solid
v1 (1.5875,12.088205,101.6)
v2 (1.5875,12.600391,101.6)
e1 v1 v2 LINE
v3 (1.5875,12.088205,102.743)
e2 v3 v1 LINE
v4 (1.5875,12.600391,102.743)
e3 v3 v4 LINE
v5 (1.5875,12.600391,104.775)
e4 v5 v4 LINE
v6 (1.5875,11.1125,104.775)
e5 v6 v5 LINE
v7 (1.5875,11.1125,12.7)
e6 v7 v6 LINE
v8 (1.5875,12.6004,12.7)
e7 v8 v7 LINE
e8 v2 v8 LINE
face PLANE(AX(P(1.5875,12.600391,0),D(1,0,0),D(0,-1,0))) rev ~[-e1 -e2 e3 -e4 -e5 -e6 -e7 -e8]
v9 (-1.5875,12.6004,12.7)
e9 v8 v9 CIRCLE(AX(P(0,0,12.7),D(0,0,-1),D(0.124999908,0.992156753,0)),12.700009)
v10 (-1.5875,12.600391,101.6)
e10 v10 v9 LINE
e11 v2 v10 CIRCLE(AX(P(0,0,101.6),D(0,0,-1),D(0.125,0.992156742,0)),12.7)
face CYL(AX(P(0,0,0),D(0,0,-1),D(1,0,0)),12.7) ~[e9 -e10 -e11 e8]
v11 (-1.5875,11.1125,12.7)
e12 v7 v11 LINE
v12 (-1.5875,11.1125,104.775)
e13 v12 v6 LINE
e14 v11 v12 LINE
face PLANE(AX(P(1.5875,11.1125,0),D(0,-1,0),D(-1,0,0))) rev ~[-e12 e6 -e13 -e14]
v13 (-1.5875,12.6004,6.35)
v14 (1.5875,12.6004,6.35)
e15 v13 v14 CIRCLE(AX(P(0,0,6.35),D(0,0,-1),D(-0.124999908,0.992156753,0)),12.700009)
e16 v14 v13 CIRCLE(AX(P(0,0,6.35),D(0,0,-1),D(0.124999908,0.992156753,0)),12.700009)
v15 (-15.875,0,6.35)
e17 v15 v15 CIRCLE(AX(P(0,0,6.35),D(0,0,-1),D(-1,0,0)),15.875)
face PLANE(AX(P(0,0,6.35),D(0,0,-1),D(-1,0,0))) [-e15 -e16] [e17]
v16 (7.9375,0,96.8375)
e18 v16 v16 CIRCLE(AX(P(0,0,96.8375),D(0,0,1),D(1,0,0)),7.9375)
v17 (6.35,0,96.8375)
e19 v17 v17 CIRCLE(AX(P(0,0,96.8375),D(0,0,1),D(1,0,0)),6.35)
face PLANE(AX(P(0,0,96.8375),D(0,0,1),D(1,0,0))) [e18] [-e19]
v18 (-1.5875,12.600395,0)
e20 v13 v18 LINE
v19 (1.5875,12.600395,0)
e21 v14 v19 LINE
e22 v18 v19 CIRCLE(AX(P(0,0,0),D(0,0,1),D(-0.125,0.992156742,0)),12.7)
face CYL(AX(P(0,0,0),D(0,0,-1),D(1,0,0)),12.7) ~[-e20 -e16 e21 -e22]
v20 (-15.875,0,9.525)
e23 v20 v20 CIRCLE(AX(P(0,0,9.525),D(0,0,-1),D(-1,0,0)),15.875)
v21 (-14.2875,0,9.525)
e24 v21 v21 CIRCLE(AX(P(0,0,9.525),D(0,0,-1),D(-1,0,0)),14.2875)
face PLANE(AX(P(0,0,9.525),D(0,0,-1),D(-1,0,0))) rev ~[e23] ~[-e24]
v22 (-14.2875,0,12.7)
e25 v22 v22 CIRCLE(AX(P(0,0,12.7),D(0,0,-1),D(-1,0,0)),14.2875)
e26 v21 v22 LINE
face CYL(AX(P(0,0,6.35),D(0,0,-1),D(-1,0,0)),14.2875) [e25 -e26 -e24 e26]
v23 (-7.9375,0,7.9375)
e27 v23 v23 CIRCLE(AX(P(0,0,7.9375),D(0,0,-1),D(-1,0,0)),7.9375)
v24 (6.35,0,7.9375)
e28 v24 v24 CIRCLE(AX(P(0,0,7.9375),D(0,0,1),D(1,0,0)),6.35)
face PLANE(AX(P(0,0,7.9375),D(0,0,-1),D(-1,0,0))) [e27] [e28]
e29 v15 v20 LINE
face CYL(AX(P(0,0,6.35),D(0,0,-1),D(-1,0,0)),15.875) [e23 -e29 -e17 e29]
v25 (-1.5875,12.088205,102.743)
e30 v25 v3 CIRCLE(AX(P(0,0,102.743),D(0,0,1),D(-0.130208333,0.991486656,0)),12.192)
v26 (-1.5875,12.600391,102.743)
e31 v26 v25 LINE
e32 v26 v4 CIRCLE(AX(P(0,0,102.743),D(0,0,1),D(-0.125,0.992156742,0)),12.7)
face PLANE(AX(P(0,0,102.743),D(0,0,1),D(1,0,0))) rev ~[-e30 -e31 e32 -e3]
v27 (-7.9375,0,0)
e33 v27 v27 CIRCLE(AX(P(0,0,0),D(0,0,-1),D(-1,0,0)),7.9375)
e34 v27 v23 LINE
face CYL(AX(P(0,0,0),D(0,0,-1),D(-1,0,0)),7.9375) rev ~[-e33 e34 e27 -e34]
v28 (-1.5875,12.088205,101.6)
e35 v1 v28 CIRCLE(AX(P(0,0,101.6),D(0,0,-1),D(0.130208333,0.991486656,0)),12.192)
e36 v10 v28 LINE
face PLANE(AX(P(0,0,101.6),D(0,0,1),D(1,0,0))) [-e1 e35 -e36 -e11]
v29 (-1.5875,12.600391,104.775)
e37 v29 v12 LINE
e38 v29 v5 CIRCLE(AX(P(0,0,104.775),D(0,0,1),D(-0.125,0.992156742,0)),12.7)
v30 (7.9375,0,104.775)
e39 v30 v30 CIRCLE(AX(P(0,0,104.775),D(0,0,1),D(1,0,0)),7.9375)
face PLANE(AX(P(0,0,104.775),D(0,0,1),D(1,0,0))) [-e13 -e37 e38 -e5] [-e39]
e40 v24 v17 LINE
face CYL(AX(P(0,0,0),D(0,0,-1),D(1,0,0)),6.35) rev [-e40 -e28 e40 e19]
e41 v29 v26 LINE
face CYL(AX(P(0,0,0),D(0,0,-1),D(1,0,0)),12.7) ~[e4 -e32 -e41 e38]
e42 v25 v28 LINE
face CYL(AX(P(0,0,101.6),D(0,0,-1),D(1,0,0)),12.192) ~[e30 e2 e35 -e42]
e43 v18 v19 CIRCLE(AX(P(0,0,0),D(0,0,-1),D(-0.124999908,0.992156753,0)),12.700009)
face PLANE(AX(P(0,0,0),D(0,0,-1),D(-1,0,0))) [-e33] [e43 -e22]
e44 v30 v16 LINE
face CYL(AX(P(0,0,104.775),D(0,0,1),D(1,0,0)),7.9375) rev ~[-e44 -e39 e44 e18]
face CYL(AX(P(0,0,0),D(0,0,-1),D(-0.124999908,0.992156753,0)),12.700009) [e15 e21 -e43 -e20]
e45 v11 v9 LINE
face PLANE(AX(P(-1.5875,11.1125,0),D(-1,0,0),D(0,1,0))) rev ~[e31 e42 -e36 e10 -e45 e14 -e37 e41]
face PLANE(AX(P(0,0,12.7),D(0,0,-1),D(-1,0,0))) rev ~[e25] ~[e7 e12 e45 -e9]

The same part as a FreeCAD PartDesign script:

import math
import FreeCAD as App
import Part
import Sketcher
Q = App.Units.Quantity


def add_polygon(sketch, points):
    """Adds a closed chain of lines whose ends are joined by coincident constraints."""
    first, n = sketch.GeometryCount, len(points)
    for a, b in zip(points, points[1:] + points[:1]):
        sketch.addGeometry(Part.LineSegment(App.Vector(*a, 0), App.Vector(*b, 0)), False)
    for i in range(n):
        sketch.addConstraint(Sketcher.Constraint("Coincident", first + i, 2, first + (i + 1) % n, 1))

doc = App.newDocument("Part")
body = doc.addObject("PartDesign::Body", "Body")

# Sketch on XY plane
sketch1 = doc.addObject("Sketcher::SketchObject", "Sketch")
body.addObject(sketch1)
sketch1.AttachmentSupport = (doc.XY_Plane, [""])
sketch1.MapMode = "FlatFace"
sketch1.addGeometry([
    Part.Circle(App.Vector(0, 0, 0), App.Vector(0, 0, 1), 13),
    Part.Circle(App.Vector(0, 0, 0), App.Vector(0, 0, 1), 6),
], False)
sketch1.addConstraint([
    Sketcher.Constraint("Coincident", 0, 3, -1, 1),
    Sketcher.Constraint("Coincident", 1, 3, -1, 1),
    Sketcher.Constraint("Diameter", 0, Q("1 in")),
    Sketcher.Constraint("Diameter", 1, Q("0.5 in")),
])
pad1 = doc.addObject("PartDesign::Pad", "Pad")
body.addObject(pad1)
pad1.Profile = sketch1
pad1.Length = Q("4.125 in")

# Sketch on XY plane
sketch2 = doc.addObject("Sketcher::SketchObject", "Sketch001")
body.addObject(sketch2)
sketch2.AttachmentSupport = (doc.XY_Plane, [""])
sketch2.MapMode = "FlatFace"
sketch2.AttachmentOffset = App.Placement(App.Vector(0, 0, 4 * 25.4), App.Rotation())
sketch2.addGeometry([
    Part.Circle(App.Vector(0, 0, 0), App.Vector(0, 0, 1), 13),
    Part.Circle(App.Vector(0, 0, 0), App.Vector(0, 0, 1), 12),
], False)
sketch2.addConstraint([
    Sketcher.Constraint("Coincident", 0, 3, -1, 1),
    Sketcher.Constraint("Coincident", 1, 3, -1, 1),
    Sketcher.Constraint("Diameter", 1, Q("0.96 in")),
    Sketcher.Constraint("Diameter", 0, Q("1 in")),
])
pocket1 = doc.addObject("PartDesign::Pocket", "Pocket")
body.addObject(pocket1)
pocket1.Profile = sketch2
pocket1.Length = Q("0.045 in")
pocket1.Reversed = True

# Sketch on XY plane
sketch3 = doc.addObject("Sketcher::SketchObject", "Sketch002")
body.addObject(sketch3)
sketch3.AttachmentSupport = (doc.XY_Plane, [""])
sketch3.MapMode = "FlatFace"
add_polygon(sketch3, [(1.6, 11.1), (1.6, 14.3), (-1.6, 14.3), (-1.6, 11.1)])  # lines 0-3
sketch3.addConstraint([
    Sketcher.Constraint("Vertical", 0),
    Sketcher.Constraint("Horizontal", 1),
    Sketcher.Constraint("Vertical", 2),
    Sketcher.Constraint("Horizontal", 3),
    Sketcher.Constraint("Equal", 3, 0),
    Sketcher.Constraint("DistanceX", 1, 2, 1, 1, Q("0.125 in")),
    Sketcher.Constraint("DistanceX", -1, 1, 0, 2, Q("0.0625 in")),
    Sketcher.Constraint("DistanceY", -1, 1, 0, 2, Q("0.5625 in")),
])
pocket2 = doc.addObject("PartDesign::Pocket", "Pocket001")
body.addObject(pocket2)
pocket2.Profile = sketch3
pocket2.Type = "ThroughAll"
pocket2.Reversed = True

# Sketch on XY plane
sketch4 = doc.addObject("Sketcher::SketchObject", "Sketch003")
body.addObject(sketch4)
sketch4.AttachmentSupport = (doc.XY_Plane, [""])
sketch4.MapMode = "FlatFace"
sketch4.AttachmentOffset = App.Placement(App.Vector(0, 0, 4.125 * 25.4), App.Rotation())
sketch4.addGeometry([
    Part.Circle(App.Vector(0, 0, 0), App.Vector(0, 0, 1), 8),
    Part.Circle(App.Vector(0, 0, 0), App.Vector(0, 0, 1), 6),
], False)
sketch4.addConstraint([
    Sketcher.Constraint("Coincident", 0, 3, -1, 1),
    Sketcher.Constraint("Coincident", 1, 3, -1, 1),
    Sketcher.Constraint("Diameter", 0, Q("0.625 in")),
    Sketcher.Constraint("Diameter", 1, Q("0.5 in")),
])
pocket3 = doc.addObject("PartDesign::Pocket", "Pocket002")
body.addObject(pocket3)
pocket3.Profile = sketch4
pocket3.Length = Q("0.3125 in")

# Sketch on XY plane
sketch5 = doc.addObject("Sketcher::SketchObject", "Sketch004")
body.addObject(sketch5)
sketch5.AttachmentSupport = (doc.XY_Plane, [""])
sketch5.MapMode = "FlatFace"
sketch5.addGeometry([
    Part.Circle(App.Vector(0, 0, 0), App.Vector(0, 0, 1), 8),
    Part.Circle(App.Vector(0, 0, 0), App.Vector(0, 0, 1), 6),
], False)
sketch5.addConstraint([
    Sketcher.Constraint("Coincident", 0, 3, -1, 1),
    Sketcher.Constraint("Coincident", 1, 3, -1, 1),
    Sketcher.Constraint("Diameter", 0, Q("0.625 in")),
    Sketcher.Constraint("Diameter", 1, Q("0.5 in")),
])
pocket4 = doc.addObject("PartDesign::Pocket", "Pocket003")
body.addObject(pocket4)
pocket4.Profile = sketch5
pocket4.Length = Q("0.3125 in")
pocket4.Reversed = True

# Sketch on XY plane
sketch6 = doc.addObject("Sketcher::SketchObject", "Sketch005")
body.addObject(sketch6)
sketch6.AttachmentSupport = (doc.XY_Plane, [""])
sketch6.MapMode = "FlatFace"
sketch6.AttachmentOffset = App.Placement(App.Vector(0, 0, 0.25 * 25.4), App.Rotation())
sketch6.addGeometry([
    Part.Circle(App.Vector(0, 0, 0), App.Vector(0, 0, 1), 15.9),  # 0
    Part.LineSegment(App.Vector(1.6, 12.6, 0), App.Vector(1.6, 11.1, 0)),  # 1
    Part.LineSegment(App.Vector(1.6, 11.1, 0), App.Vector(-1.6, 11.1, 0)),  # 2
    Part.LineSegment(App.Vector(-1.6, 11.1, 0), App.Vector(-1.6, 12.6, 0)),  # 3
    Part.ArcOfCircle(Part.Circle(App.Vector(0, 0, 0), App.Vector(0, 0, 1), 12.7), math.radians(97), math.radians(443)),  # 4
], False)
sketch6.addConstraint([
    Sketcher.Constraint("Coincident", 1, 2, 2, 1),
    Sketcher.Constraint("Coincident", 2, 2, 3, 1),
    Sketcher.Constraint("Coincident", 3, 2, 4, 1),
    Sketcher.Constraint("Coincident", 4, 2, 1, 1),
    Sketcher.Constraint("Vertical", 1),
    Sketcher.Constraint("Horizontal", 2),
    Sketcher.Constraint("Vertical", 3),
    Sketcher.Constraint("Coincident", 0, 3, -1, 1),
    Sketcher.Constraint("Coincident", 4, 3, -1, 1),
    Sketcher.Constraint("Horizontal", 3, 2, 4, 2),
    Sketcher.Constraint("Diameter", 0, Q("1.25 in")),
    Sketcher.Constraint("Radius", 4, Q("0.5 in")),
    Sketcher.Constraint("DistanceX", 2, 2, 2, 1, Q("0.125 in")),
    Sketcher.Constraint("DistanceY", -1, 1, 1, 2, Q("0.4375 in")),
])
pad2 = doc.addObject("PartDesign::Pad", "Pad001")
body.addObject(pad2)
pad2.Profile = sketch6
pad2.Length = Q("0.125 in")

# Sketch on XY plane
sketch7 = doc.addObject("Sketcher::SketchObject", "Sketch006")
body.addObject(sketch7)
sketch7.AttachmentSupport = (doc.XY_Plane, [""])
sketch7.MapMode = "FlatFace"
sketch7.addGeometry([
    Part.LineSegment(App.Vector(1.6, 12.6, 0), App.Vector(1.6, 11.1, 0)),
    Part.LineSegment(App.Vector(1.6, 11.1, 0), App.Vector(-1.6, 11.1, 0)),
    Part.LineSegment(App.Vector(-1.6, 11.1, 0), App.Vector(-1.6, 12.6, 0)),
    Part.ArcOfCircle(Part.Circle(App.Vector(0, 0, 0), App.Vector(0, 0, 1), 12.7), math.radians(82.82), math.radians(97.18)),
], False)
sketch7.addConstraint([
    Sketcher.Constraint("Coincident", 0, 2, 1, 1),
    Sketcher.Constraint("Coincident", 1, 2, 2, 1),
    Sketcher.Constraint("Coincident", 2, 2, 3, 2),
    Sketcher.Constraint("Coincident", 3, 1, 0, 1),
    Sketcher.Constraint("Vertical", 0),
    Sketcher.Constraint("Horizontal", 1),
    Sketcher.Constraint("Vertical", 2),
    Sketcher.Constraint("Coincident", 3, 3, -1, 1),
    Sketcher.Constraint("Horizontal", 2, 2, 3, 1),
    Sketcher.Constraint("Radius", 3, Q("0.5 in")),
    Sketcher.Constraint("DistanceX", 1, 2, 1, 1, Q("0.125 in")),
    Sketcher.Constraint("DistanceY", -1, 1, 0, 2, Q("0.4375 in")),
])
pad3 = doc.addObject("PartDesign::Pad", "Pad002")
body.addObject(pad3)
pad3.Profile = sketch7
pad3.Length = Q("0.25 in")

# Sketch on XY plane
sketch8 = doc.addObject("Sketcher::SketchObject", "Sketch007")
body.addObject(sketch8)
sketch8.AttachmentSupport = (doc.XY_Plane, [""])
sketch8.MapMode = "FlatFace"
sketch8.AttachmentOffset = App.Placement(App.Vector(0, 0, 0.25 * 25.4), App.Rotation())
sketch8.addGeometry([
    Part.Circle(App.Vector(0, 0, 0), App.Vector(0, 0, 1), 14.3),  # 0
    Part.ArcOfCircle(Part.Circle(App.Vector(0, 0, 0), App.Vector(0, 0, 1), 12.7), math.radians(97), math.radians(443)),  # 1
    Part.LineSegment(App.Vector(1.6, 12.6, 0), App.Vector(1.6, 11.1, 0)),  # 2
    Part.LineSegment(App.Vector(1.6, 11.1, 0), App.Vector(-1.6, 11.1, 0)),  # 3
    Part.LineSegment(App.Vector(-1.6, 11.1, 0), App.Vector(-1.6, 12.6, 0)),  # 4
], False)
sketch8.addConstraint([
    Sketcher.Constraint("Coincident", 1, 2, 2, 1),
    Sketcher.Constraint("Coincident", 2, 2, 3, 1),
    Sketcher.Constraint("Coincident", 3, 2, 4, 1),
    Sketcher.Constraint("Coincident", 4, 2, 1, 1),
    Sketcher.Constraint("Vertical", 2),
    Sketcher.Constraint("Horizontal", 3),
    Sketcher.Constraint("Vertical", 4),
    Sketcher.Constraint("Coincident", 0, 3, -1, 1),
    Sketcher.Constraint("Coincident", 1, 3, -1, 1),
    Sketcher.Constraint("Horizontal", 1, 2, 4, 2),
    Sketcher.Constraint("Diameter", 0, Q("1.125 in")),
    Sketcher.Constraint("Radius", 1, Q("0.5 in")),
    Sketcher.Constraint("DistanceX", 3, 2, 3, 1, Q("0.125 in")),
    Sketcher.Constraint("DistanceY", -1, 1, 2, 2, Q("0.4375 in")),
])
pad4 = doc.addObject("PartDesign::Pad", "Pad003")
body.addObject(pad4)
pad4.Profile = sketch8
pad4.Length = Q("0.25 in")

doc.recompute()
